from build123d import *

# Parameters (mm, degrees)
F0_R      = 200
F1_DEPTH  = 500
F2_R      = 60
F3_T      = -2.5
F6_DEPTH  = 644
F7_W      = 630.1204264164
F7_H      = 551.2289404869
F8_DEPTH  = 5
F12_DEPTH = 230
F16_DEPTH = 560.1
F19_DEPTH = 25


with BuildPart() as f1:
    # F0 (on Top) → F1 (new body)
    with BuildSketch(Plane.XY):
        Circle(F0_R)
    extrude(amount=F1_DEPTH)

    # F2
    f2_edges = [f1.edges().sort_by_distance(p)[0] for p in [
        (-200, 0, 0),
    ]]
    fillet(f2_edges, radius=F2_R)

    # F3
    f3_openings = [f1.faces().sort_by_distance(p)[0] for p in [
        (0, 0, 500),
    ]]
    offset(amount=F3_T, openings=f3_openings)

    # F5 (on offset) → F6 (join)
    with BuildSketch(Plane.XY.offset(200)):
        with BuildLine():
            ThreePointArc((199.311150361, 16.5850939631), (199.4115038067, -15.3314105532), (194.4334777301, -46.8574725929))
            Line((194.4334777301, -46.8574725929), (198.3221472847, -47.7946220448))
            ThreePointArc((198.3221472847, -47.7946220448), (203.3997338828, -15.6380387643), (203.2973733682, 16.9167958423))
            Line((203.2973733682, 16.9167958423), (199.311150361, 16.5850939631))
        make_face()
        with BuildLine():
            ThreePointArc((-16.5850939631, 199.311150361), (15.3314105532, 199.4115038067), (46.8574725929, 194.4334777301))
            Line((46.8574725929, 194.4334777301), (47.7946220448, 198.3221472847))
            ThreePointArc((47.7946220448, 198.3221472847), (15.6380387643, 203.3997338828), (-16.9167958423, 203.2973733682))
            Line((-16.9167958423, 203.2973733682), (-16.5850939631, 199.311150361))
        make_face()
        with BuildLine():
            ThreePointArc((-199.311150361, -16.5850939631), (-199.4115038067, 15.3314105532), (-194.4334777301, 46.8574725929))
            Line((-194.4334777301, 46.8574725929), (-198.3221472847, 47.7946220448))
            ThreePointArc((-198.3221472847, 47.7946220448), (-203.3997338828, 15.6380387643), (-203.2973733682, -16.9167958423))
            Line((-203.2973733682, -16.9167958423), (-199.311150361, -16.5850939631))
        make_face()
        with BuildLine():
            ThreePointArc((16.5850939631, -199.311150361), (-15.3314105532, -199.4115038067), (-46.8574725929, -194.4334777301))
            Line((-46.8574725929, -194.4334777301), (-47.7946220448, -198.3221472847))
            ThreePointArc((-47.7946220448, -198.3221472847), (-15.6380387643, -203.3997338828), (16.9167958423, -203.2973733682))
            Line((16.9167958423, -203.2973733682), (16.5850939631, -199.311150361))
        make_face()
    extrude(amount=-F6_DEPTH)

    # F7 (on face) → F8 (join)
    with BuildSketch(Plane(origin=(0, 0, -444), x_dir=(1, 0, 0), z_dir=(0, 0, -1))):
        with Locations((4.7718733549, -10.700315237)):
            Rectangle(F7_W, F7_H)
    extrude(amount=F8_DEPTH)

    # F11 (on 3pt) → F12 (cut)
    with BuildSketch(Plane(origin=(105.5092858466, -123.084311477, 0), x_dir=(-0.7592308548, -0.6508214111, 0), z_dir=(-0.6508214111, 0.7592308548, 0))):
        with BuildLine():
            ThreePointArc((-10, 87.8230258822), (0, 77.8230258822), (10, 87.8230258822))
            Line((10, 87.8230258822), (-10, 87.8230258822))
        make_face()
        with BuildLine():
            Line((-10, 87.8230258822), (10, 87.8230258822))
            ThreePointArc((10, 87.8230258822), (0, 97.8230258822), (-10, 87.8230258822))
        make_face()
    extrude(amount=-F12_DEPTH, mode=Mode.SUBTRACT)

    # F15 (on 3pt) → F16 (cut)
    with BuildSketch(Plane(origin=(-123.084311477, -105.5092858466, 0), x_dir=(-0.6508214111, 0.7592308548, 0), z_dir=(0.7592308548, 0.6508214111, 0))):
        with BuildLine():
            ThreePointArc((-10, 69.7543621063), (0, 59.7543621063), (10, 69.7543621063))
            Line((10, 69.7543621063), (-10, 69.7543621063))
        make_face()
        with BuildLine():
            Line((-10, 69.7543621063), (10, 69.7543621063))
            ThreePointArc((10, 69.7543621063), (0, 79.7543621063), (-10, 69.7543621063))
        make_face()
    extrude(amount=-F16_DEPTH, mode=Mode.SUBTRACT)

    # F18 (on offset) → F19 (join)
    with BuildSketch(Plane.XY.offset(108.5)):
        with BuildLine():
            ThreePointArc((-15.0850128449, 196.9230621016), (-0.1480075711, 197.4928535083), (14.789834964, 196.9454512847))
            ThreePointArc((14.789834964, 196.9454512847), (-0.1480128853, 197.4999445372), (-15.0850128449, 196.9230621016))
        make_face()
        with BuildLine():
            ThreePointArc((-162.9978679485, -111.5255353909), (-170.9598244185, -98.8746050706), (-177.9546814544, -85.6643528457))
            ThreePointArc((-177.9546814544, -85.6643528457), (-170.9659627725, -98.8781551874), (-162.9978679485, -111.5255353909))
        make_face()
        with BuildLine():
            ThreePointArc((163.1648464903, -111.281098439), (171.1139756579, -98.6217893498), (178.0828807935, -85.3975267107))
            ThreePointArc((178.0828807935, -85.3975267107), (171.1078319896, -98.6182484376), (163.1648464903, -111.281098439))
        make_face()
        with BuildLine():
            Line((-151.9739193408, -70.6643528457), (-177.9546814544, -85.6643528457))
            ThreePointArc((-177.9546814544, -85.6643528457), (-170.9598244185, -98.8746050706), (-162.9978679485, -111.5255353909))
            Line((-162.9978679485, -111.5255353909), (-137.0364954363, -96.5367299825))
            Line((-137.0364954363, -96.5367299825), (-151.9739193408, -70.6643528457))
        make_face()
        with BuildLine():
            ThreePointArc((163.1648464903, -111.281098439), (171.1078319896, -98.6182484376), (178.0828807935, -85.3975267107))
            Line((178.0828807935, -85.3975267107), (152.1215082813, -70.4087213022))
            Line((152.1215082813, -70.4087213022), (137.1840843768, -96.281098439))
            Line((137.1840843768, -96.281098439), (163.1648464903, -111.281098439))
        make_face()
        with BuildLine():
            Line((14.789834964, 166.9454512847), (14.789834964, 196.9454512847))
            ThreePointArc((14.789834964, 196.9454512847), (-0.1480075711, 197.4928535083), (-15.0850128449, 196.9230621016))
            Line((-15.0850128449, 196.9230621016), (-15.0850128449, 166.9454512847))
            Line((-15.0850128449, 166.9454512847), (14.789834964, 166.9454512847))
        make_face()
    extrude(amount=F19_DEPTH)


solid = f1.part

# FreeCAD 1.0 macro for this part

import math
import FreeCAD as App
import Part
import Sketcher

V = App.Vector
Q = App.Units.Quantity


def edges_at(feature, points):
    """Names of the edges that pass closest to the given points."""
    edges = feature.Shape.Edges
    near = lambda p: min(range(len(edges)), key=lambda i: edges[i].distToShape(Part.Vertex(*p))[0])
    return sorted({f"Edge{near(p) + 1}" for p in points})


def faces_at(feature, points):
    """Names of the faces that lie closest to the given points."""
    faces = feature.Shape.Faces
    near = lambda p: min(range(len(faces)), key=lambda i: faces[i].distToShape(Part.Vertex(*p))[0])
    return sorted({f"Face{near(p) + 1}" for p in points})


def add_polygon(sketch, points):
    """Adds a closed chain of lines whose ends are joined by coincident constraints."""
    first, n = sketch.GeometryCount, len(points)
    for a, b in zip(points, points[1:] + points[:1]):
        sketch.addGeometry(Part.LineSegment(App.Vector(*a, 0), App.Vector(*b, 0)), False)
    for i in range(n):
        sketch.addConstraint(Sketcher.Constraint("Coincident", first + i, 2, first + (i + 1) % n, 1))

doc = App.newDocument("Part")
params = doc.addObject("Spreadsheet::Sheet", "Params")
for row, (alias, value) in enumerate([
    ("sketch1_diameter", "400 mm"),
    ("pad1_length", "500 mm"),
    ("fillet_radius", "60 mm"),
    ("thickness_wall", "2.5 mm"),
    ("sketch2_radius", "200 mm"),
    ("sketch2_radius2", "204 mm"),
    ("pad2_length", "644 mm"),
    ("pad3_length", "5 mm"),
    ("sketch4_diameter", "20 mm"),
    ("pocket1_length", "230 mm"),
    ("sketch5_diameter", "20 mm"),
    ("pocket2_length", "560.1 mm"),
    ("sketch6_radius", "197.5 mm"),
    ("sketch6_height", "30 mm"),
    ("sketch6_length", "30 mm"),
    ("pad4_length", "25 mm"),
], start=1):
    params.set(f"A{row}", alias)
    params.set(f"B{row}", "=" + value)
    params.setAlias(f"B{row}", alias)

body = doc.addObject("PartDesign::Body", "Body")

sketch1 = body.newObject("Sketcher::SketchObject", "Sketch")
sketch1.AttachmentSupport = (doc.getObject("XY_Plane"), [""])
sketch1.MapMode = "FlatFace"
sketch1.addGeometry(Part.Circle(V(0, 0, 0), V(0, 0, 1), 200), False)
sketch1.addConstraint(Sketcher.Constraint("Coincident", 0, 3, -1, 1))
sketch1.addConstraint(Sketcher.Constraint("Diameter", 0, Q("400 mm")))
sketch1.setExpression("Constraints[1]", "Params.sketch1_diameter")
pad1 = body.newObject("PartDesign::Pad", "Pad")
pad1.Profile = sketch1
pad1.setExpression("Length", "Params.pad1_length")
doc.recompute()

fillet = body.newObject("PartDesign::Fillet", "Fillet")
fillet.Base = (pad1, edges_at(pad1, [(-200, 0, 0)]))
fillet.setExpression("Radius", "Params.fillet_radius")
doc.recompute()

thickness = body.newObject("PartDesign::Thickness", "Thickness")
thickness.Base = (fillet, faces_at(fillet, [(0, 0, 500)]))
thickness.setExpression("Value", "Params.thickness_wall")
thickness.Reversed = True
thickness.Join = "Arc"

sketch2 = body.newObject("Sketcher::SketchObject", "Sketch001")
sketch2.AttachmentSupport = (doc.getObject("XY_Plane"), [""])
sketch2.MapMode = "FlatFace"
sketch2.AttachmentOffset = App.Placement(V(0, 0, 200), App.Rotation())
sketch2.addGeometry(Part.ArcOfCircle(Part.Circle(V(0, 0, 0), V(0, 0, 1), 200), math.radians(-13.549619), math.radians(4.756742)), False)
sketch2.addGeometry(Part.LineSegment(V(194.433478, -46.857473, 0), V(198.322147, -47.794622, 0)), False)
sketch2.addGeometry(Part.ArcOfCircle(Part.Circle(V(0, 0, 0), V(0, 0, 1), 204), math.radians(-13.549619), math.radians(4.756742)), False)
sketch2.addGeometry(Part.LineSegment(V(203.297373, 16.916796, 0), V(199.31115, 16.585094, 0)), False)
sketch2.addGeometry(Part.ArcOfCircle(Part.Circle(V(0, 0, 0), V(0, 0, 1), 200), math.radians(76.450381), math.radians(94.756742)), False)
sketch2.addGeometry(Part.LineSegment(V(46.857473, 194.433478, 0), V(47.794622, 198.322147, 0)), False)
sketch2.addGeometry(Part.ArcOfCircle(Part.Circle(V(0, 0, 0), V(0, 0, 1), 204), math.radians(76.450381), math.radians(94.756742)), False)
sketch2.addGeometry(Part.LineSegment(V(-16.916796, 203.297373, 0), V(-16.585094, 199.31115, 0)), False)
sketch2.addGeometry(Part.ArcOfCircle(Part.Circle(V(0, 0, 0), V(0, 0, 1), 200), math.radians(166.450381), math.radians(184.756742)), False)
sketch2.addGeometry(Part.LineSegment(V(-194.433478, 46.857473, 0), V(-198.322147, 47.794622, 0)), False)
sketch2.addGeometry(Part.ArcOfCircle(Part.Circle(V(0, 0, 0), V(0, 0, 1), 204), math.radians(166.450381), math.radians(184.756742)), False)
sketch2.addGeometry(Part.LineSegment(V(-203.297373, -16.916796, 0), V(-199.31115, -16.585094, 0)), False)
sketch2.addGeometry(Part.ArcOfCircle(Part.Circle(V(0, 0, 0), V(0, 0, 1), 200), math.radians(-103.549619), math.radians(-85.243258)), False)
sketch2.addGeometry(Part.LineSegment(V(-46.857473, -194.433478, 0), V(-47.794622, -198.322147, 0)), False)
sketch2.addGeometry(Part.ArcOfCircle(Part.Circle(V(0, 0, 0), V(0, 0, 1), 204), math.radians(-103.549619), math.radians(-85.243258)), False)
sketch2.addGeometry(Part.LineSegment(V(16.916796, -203.297373, 0), V(16.585094, -199.31115, 0)), False)
sketch2.addConstraint(Sketcher.Constraint("Coincident", 0, 1, 1, 1))
sketch2.addConstraint(Sketcher.Constraint("Coincident", 1, 2, 2, 1))
sketch2.addConstraint(Sketcher.Constraint("Coincident", 2, 2, 3, 1))
sketch2.addConstraint(Sketcher.Constraint("Coincident", 3, 2, 0, 2))
sketch2.addConstraint(Sketcher.Constraint("Coincident", 4, 1, 5, 1))
sketch2.addConstraint(Sketcher.Constraint("Coincident", 5, 2, 6, 1))
sketch2.addConstraint(Sketcher.Constraint("Coincident", 6, 2, 7, 1))
sketch2.addConstraint(Sketcher.Constraint("Coincident", 7, 2, 4, 2))
sketch2.addConstraint(Sketcher.Constraint("Coincident", 8, 1, 9, 1))
sketch2.addConstraint(Sketcher.Constraint("Coincident", 9, 2, 10, 1))
sketch2.addConstraint(Sketcher.Constraint("Coincident", 10, 2, 11, 1))
sketch2.addConstraint(Sketcher.Constraint("Coincident", 11, 2, 8, 2))
sketch2.addConstraint(Sketcher.Constraint("Coincident", 12, 1, 13, 1))
sketch2.addConstraint(Sketcher.Constraint("Coincident", 13, 2, 14, 1))
sketch2.addConstraint(Sketcher.Constraint("Coincident", 14, 2, 15, 1))
sketch2.addConstraint(Sketcher.Constraint("Coincident", 15, 2, 12, 2))
sketch2.addConstraint(Sketcher.Constraint("Coincident", 0, 3, -1, 1))
sketch2.addConstraint(Sketcher.Constraint("Coincident", 2, 3, -1, 1))
sketch2.addConstraint(Sketcher.Constraint("Coincident", 4, 3, -1, 1))
sketch2.addConstraint(Sketcher.Constraint("Coincident", 6, 3, -1, 1))
sketch2.addConstraint(Sketcher.Constraint("Coincident", 8, 3, -1, 1))
sketch2.addConstraint(Sketcher.Constraint("Coincident", 10, 3, -1, 1))
sketch2.addConstraint(Sketcher.Constraint("Coincident", 12, 3, -1, 1))
sketch2.addConstraint(Sketcher.Constraint("Coincident", 14, 3, -1, 1))
sketch2.addConstraint(Sketcher.Constraint("Equal", 0, 4))
sketch2.addConstraint(Sketcher.Constraint("Equal", 2, 6))
sketch2.addConstraint(Sketcher.Constraint("Equal", 4, 8))
sketch2.addConstraint(Sketcher.Constraint("Equal", 6, 10))
sketch2.addConstraint(Sketcher.Constraint("Equal", 8, 12))
sketch2.addConstraint(Sketcher.Constraint("Equal", 10, 14))
sketch2.addConstraint(Sketcher.Constraint("Perpendicular", 1, 5))
sketch2.addConstraint(Sketcher.Constraint("Perpendicular", 3, 7))
sketch2.addConstraint(Sketcher.Constraint("Perpendicular", 5, 9))
sketch2.addConstraint(Sketcher.Constraint("Perpendicular", 7, 11))
sketch2.addConstraint(Sketcher.Constraint("Perpendicular", 9, 13))
sketch2.addConstraint(Sketcher.Constraint("Perpendicular", 11, 15))
sketch2.addConstraint(Sketcher.Constraint("Radius", 0, Q("200 mm")))
sketch2.addConstraint(Sketcher.Constraint("Radius", 2, Q("204 mm")))
sketch2.addConstraint(Sketcher.Constraint("DistanceY", 3, 2, 2, 2, Q("0.331702 mm")))
sketch2.addConstraint(Sketcher.Constraint("DistanceX", -1, 1, 3, 2, Q("199.31115 mm")))
sketch2.addConstraint(Sketcher.Constraint("DistanceY", -1, 1, 7, 2, Q("199.31115 mm")))
sketch2.addConstraint(Sketcher.Constraint("DistanceX", 11, 2, -1, 1, Q("199.31115 mm")))
sketch2.addConstraint(Sketcher.Constraint("DistanceY", 15, 2, -1, 1, Q("199.31115 mm")))
sketch2.addConstraint(Sketcher.Constraint("DistanceX", 0, 1, 1, 2, Q("3.88867 mm")))
sketch2.addConstraint(Sketcher.Constraint("DistanceY", 0, 1, 2, 2, Q("63.774268 mm")))
sketch2.addConstraint(Sketcher.Constraint("DistanceX", 6, 2, 4, 1, Q("63.774268 mm")))
sketch2.addConstraint(Sketcher.Constraint("DistanceY", 10, 2, 8, 1, Q("63.774268 mm")))
sketch2.addConstraint(Sketcher.Constraint("DistanceX", 12, 1, 14, 2, Q("63.774268 mm")))
sketch2.setExpression("Constraints[36]", "Params.sketch2_radius")
sketch2.setExpression("Constraints[37]", "Params.sketch2_radius2")
pad2 = body.newObject("PartDesign::Pad", "Pad001")
pad2.Profile = sketch2
pad2.setExpression("Length", "Params.pad2_length")
pad2.Reversed = True

sketch3 = body.newObject("Sketcher::SketchObject", "Sketch002")
sketch3.AttachmentSupport = (doc.getObject("XY_Plane"), [""])
sketch3.MapMode = "FlatFace"
sketch3.AttachmentOffset = App.Placement(V(0, 0, -444), App.Rotation())
add_polygon(sketch3, [(-310.28834, -264.914155), (-310.28834, 286.314785), (319.832087, 286.314785), (319.832087, -264.914155)])
sketch3.addConstraint(Sketcher.Constraint("Vertical", 0))
sketch3.addConstraint(Sketcher.Constraint("Horizontal", 1))
sketch3.addConstraint(Sketcher.Constraint("Vertical", 2))
sketch3.addConstraint(Sketcher.Constraint("Horizontal", 3))
sketch3.addConstraint(Sketcher.Constraint("DistanceY", 0, 1, 0, 2, Q("551.22894 mm")))
sketch3.addConstraint(Sketcher.Constraint("DistanceX", 1, 1, 1, 2, Q("630.120426 mm")))
sketch3.addConstraint(Sketcher.Constraint("DistanceX", 0, 2, -1, 1, Q("310.28834 mm")))
sketch3.addConstraint(Sketcher.Constraint("DistanceY", -1, 1, 0, 2, Q("286.314785 mm")))
pad3 = body.newObject("PartDesign::Pad", "Pad002")
pad3.Profile = sketch3
pad3.setExpression("Length", "Params.pad3_length")
pad3.Reversed = True

sketch4 = body.newObject("Sketcher::SketchObject", "Sketch003")
sketch4.Placement = App.Placement(V(105.509286, -123.084311, 0), App.Rotation(V(-0.759230855, -0.650821411, 0), V(0, 0, 1), V(-0.650821411, 0.759230855, 0), "ZXY"))
sketch4.addGeometry(Part.Circle(V(0, 87.823026, 0), V(0, 0, 1), 10), False)
sketch4.addConstraint(Sketcher.Constraint("PointOnObject", 0, 3, -2))
sketch4.addConstraint(Sketcher.Constraint("Diameter", 0, Q("20 mm")))
sketch4.addConstraint(Sketcher.Constraint("DistanceY", -1, 1, 0, 3, Q("87.823026 mm")))
sketch4.setExpression("Constraints[1]", "Params.sketch4_diameter")
pocket1 = body.newObject("PartDesign::Pocket", "Pocket")
pocket1.Profile = sketch4
pocket1.setExpression("Length", "Params.pocket1_length")

sketch5 = body.newObject("Sketcher::SketchObject", "Sketch004")
sketch5.Placement = App.Placement(V(-123.084311, -105.509286, 0), App.Rotation(V(-0.650821411, 0.759230855, 0), V(0, 0, 1), V(0.759230855, 0.650821411, 0), "ZXY"))
sketch5.addGeometry(Part.Circle(V(0, 69.754362, 0), V(0, 0, 1), 10), False)
sketch5.addConstraint(Sketcher.Constraint("PointOnObject", 0, 3, -2))
sketch5.addConstraint(Sketcher.Constraint("Diameter", 0, Q("20 mm")))
sketch5.addConstraint(Sketcher.Constraint("DistanceY", -1, 1, 0, 3, Q("69.754362 mm")))
sketch5.setExpression("Constraints[1]", "Params.sketch5_diameter")
pocket2 = body.newObject("PartDesign::Pocket", "Pocket001")
pocket2.Profile = sketch5
pocket2.setExpression("Length", "Params.pocket2_length")

sketch6 = body.newObject("Sketcher::SketchObject", "Sketch005")
sketch6.AttachmentSupport = (doc.getObject("XY_Plane"), [""])
sketch6.MapMode = "FlatFace"
sketch6.AttachmentOffset = App.Placement(V(0, 0, 108.5), App.Rotation())
sketch6.addGeometry(Part.ArcOfCircle(Part.Circle(V(0, 0, 0), V(0, 0, 1), 197.5), math.radians(85.705371), math.radians(94.380507)), False)
sketch6.addGeometry(Part.LineSegment(V(-15.085013, 196.923062, 0), V(-15.085013, 166.945451, 0)), False)
sketch6.addGeometry(Part.LineSegment(V(-15.085013, 166.945451, 0), V(14.789835, 166.945451, 0)), False)
sketch6.addGeometry(Part.LineSegment(V(14.789835, 166.945451, 0), V(14.789835, 196.945451, 0)), False)
sketch6.addGeometry(Part.ArcOfCircle(Part.Circle(V(0, 0, 0), V(0, 0, 1), 197.5), math.radians(-154.294629), math.radians(-145.619493)), False)
sketch6.addGeometry(Part.LineSegment(V(-162.997868, -111.525535, 0), V(-137.036495, -96.53673, 0)), False)
sketch6.addGeometry(Part.LineSegment(V(-137.036495, -96.53673, 0), V(-151.973919, -70.664353, 0)), False)
sketch6.addGeometry(Part.LineSegment(V(-151.973919, -70.664353, 0), V(-177.954681, -85.664353, 0)), False)
sketch6.addGeometry(Part.ArcOfCircle(Part.Circle(V(0, 0, 0), V(0, 0, 1), 197.5), math.radians(-34.294629), math.radians(-25.619493)), False)
sketch6.addGeometry(Part.LineSegment(V(178.082881, -85.397527, 0), V(152.121508, -70.408721, 0)), False)
sketch6.addGeometry(Part.LineSegment(V(152.121508, -70.408721, 0), V(137.184084, -96.281098, 0)), False)
sketch6.addGeometry(Part.LineSegment(V(137.184084, -96.281098, 0), V(163.164846, -111.281098, 0)), False)
sketch6.addConstraint(Sketcher.Constraint("Coincident", 0, 2, 1, 1))
sketch6.addConstraint(Sketcher.Constraint("Coincident", 1, 2, 2, 1))
sketch6.addConstraint(Sketcher.Constraint("Coincident", 2, 2, 3, 1))
sketch6.addConstraint(Sketcher.Constraint("Coincident", 3, 2, 0, 1))
sketch6.addConstraint(Sketcher.Constraint("Coincident", 4, 2, 5, 1))
sketch6.addConstraint(Sketcher.Constraint("Coincident", 5, 2, 6, 1))
sketch6.addConstraint(Sketcher.Constraint("Coincident", 6, 2, 7, 1))
sketch6.addConstraint(Sketcher.Constraint("Coincident", 7, 2, 4, 1))
sketch6.addConstraint(Sketcher.Constraint("Coincident", 8, 2, 9, 1))
sketch6.addConstraint(Sketcher.Constraint("Coincident", 9, 2, 10, 1))
sketch6.addConstraint(Sketcher.Constraint("Coincident", 10, 2, 11, 1))
sketch6.addConstraint(Sketcher.Constraint("Coincident", 11, 2, 8, 1))
sketch6.addConstraint(Sketcher.Constraint("Vertical", 1))
sketch6.addConstraint(Sketcher.Constraint("Horizontal", 2))
sketch6.addConstraint(Sketcher.Constraint("Vertical", 3))
sketch6.addConstraint(Sketcher.Constraint("Coincident", 0, 3, -1, 1))
sketch6.addConstraint(Sketcher.Constraint("Coincident", 4, 3, -1, 1))
sketch6.addConstraint(Sketcher.Constraint("Coincident", 8, 3, -1, 1))
sketch6.addConstraint(Sketcher.Constraint("Equal", 0, 4))
sketch6.addConstraint(Sketcher.Constraint("Equal", 4, 8))
sketch6.addConstraint(Sketcher.Constraint("Perpendicular", 5, 6))
sketch6.addConstraint(Sketcher.Constraint("Perpendicular", 6, 7))
sketch6.addConstraint(Sketcher.Constraint("Perpendicular", 9, 10))
sketch6.addConstraint(Sketcher.Constraint("Perpendicular", 10, 11))
sketch6.addConstraint(Sketcher.Constraint("Equal", 5, 9))
sketch6.addConstraint(Sketcher.Constraint("Equal", 6, 10))
sketch6.addConstraint(Sketcher.Constraint("Equal", 7, 11))
sketch6.addConstraint(Sketcher.Constraint("Radius", 0, Q("197.5 mm")))
sketch6.addConstraint(Sketcher.Constraint("DistanceY", 3, 1, 3, 2, Q("30 mm")))
sketch6.addConstraint(Sketcher.Constraint("Angle", 5, Q("30 deg")))
sketch6.addConstraint(Sketcher.Constraint("Angle", 9, Q("150 deg")))
sketch6.addConstraint(Sketcher.Constraint("Distance", 7, Q("30 mm")))
sketch6.addConstraint(Sketcher.Constraint("DistanceY", 1, 2, 1, 1, Q("29.977611 mm")))
sketch6.addConstraint(Sketcher.Constraint("DistanceY", 10, 2, -1, 1, Q("96.281098 mm")))
sketch6.addConstraint(Sketcher.Constraint("Distance", 5, Q("29.977611 mm")))
sketch6.addConstraint(Sketcher.Constraint("DistanceX", 2, 1, 2, 2, Q("29.874848 mm")))
sketch6.setExpression("Constraints[27]", "Params.sketch6_radius")
sketch6.setExpression("Constraints[28]", "Params.sketch6_height")
sketch6.setExpression("Constraints[31]", "Params.sketch6_length")
pad4 = body.newObject("PartDesign::Pad", "Pad003")
pad4.Profile = sketch6
pad4.setExpression("Length", "Params.pad4_length")

doc.recompute()
